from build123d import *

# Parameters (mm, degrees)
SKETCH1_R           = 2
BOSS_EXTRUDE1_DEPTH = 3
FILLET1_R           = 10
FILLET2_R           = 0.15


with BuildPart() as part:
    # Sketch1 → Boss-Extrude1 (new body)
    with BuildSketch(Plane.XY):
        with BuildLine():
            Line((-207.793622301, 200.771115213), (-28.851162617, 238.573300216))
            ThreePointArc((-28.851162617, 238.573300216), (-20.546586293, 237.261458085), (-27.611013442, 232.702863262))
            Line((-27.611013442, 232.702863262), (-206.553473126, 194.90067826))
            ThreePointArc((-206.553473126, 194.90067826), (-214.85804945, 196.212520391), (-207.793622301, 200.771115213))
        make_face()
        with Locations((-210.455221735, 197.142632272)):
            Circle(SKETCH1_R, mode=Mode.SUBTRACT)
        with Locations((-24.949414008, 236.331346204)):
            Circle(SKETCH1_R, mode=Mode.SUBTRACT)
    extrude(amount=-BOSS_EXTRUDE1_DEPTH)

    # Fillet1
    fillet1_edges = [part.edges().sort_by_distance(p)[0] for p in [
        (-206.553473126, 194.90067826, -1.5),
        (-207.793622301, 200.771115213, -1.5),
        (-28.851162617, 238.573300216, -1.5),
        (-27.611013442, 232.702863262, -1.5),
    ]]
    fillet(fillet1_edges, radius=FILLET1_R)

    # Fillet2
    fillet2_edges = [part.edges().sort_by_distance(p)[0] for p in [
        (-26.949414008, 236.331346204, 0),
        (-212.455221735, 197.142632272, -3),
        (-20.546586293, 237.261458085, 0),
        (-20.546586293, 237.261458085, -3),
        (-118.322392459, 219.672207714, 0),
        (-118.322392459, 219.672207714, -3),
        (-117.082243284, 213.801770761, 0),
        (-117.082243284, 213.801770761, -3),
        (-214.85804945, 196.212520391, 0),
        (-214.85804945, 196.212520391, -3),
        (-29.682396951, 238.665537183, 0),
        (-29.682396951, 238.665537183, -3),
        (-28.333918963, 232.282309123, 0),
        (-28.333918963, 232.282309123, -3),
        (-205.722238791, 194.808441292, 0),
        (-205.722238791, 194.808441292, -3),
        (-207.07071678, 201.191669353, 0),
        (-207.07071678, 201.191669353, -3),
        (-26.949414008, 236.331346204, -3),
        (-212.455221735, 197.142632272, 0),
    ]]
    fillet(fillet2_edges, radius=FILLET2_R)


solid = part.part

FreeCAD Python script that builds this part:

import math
import FreeCAD as App
import Part
import Sketcher


def edges_at(feature, points):
    """Names of the edges that pass closest to the given points."""
    edges = feature.Shape.Edges
    near = lambda p: min(range(len(edges)), key=lambda i: edges[i].distToShape(Part.Vertex(*p))[0])
    return sorted({f"Edge{near(p) + 1}" for p in points})

doc = App.newDocument("Part")
params = doc.addObject("Spreadsheet::Sheet", "Params")
for row, (alias, value) in enumerate([
    ("sketch1_diameter", "4 mm"),
    ("sketch1_radius", "4.5 mm"),
    ("pad1_length", "3 mm"),
    ("fillet_radius", "10 mm"),
    ("fillet2_radius", "0.15 mm"),
], start=1):
    params.set(f"A{row}", alias)
    params.set(f"B{row}", "=" + value)
    params.setAlias(f"B{row}", alias)

body = doc.addObject("PartDesign::Body", "Body")

# Sketch on XY plane
sketch1 = body.newObject("Sketcher::SketchObject", "Sketch")
sketch1.AttachmentSupport = (doc.getObject("XY_Plane"), [""])
sketch1.MapMode = "FlatFace"
sketch1.addGeometry([
    Part.LineSegment(App.Vector(-28.9, 238.6, 0), App.Vector(-207.8, 200.8, 0)),  # 0
    Part.ArcOfCircle(Part.Circle(App.Vector(-210.5, 197.1, 0), App.Vector(0, 0, 1), 4.5), math.radians(54), math.radians(330)),  # 1
    Part.LineSegment(App.Vector(-206.6, 194.9, 0), App.Vector(-27.6, 232.7, 0)),  # 2
    Part.ArcOfCircle(Part.Circle(App.Vector(-24.9, 236.3, 0), App.Vector(0, 0, 1), 4.5), math.radians(-126), math.radians(150)),  # 3
    Part.Circle(App.Vector(-210.5, 197.1, 0), App.Vector(0, 0, 1), 2),  # 4
    Part.Circle(App.Vector(-24.9, 236.3, 0), App.Vector(0, 0, 1), 2),  # 5
], False)
sketch1.addConstraint([
    Sketcher.Constraint("Coincident", 0, 2, 1, 1),
    Sketcher.Constraint("Coincident", 1, 2, 2, 1),
    Sketcher.Constraint("Coincident", 2, 2, 3, 1),
    Sketcher.Constraint("Coincident", 3, 2, 0, 1),
    Sketcher.Constraint("Coincident", 4, 3, 1, 3),
    Sketcher.Constraint("Coincident", 5, 3, 3, 3),
    Sketcher.Constraint("Equal", 1, 3),
    Sketcher.Constraint("Equal", 4, 5),
    Sketcher.Constraint("Parallel", 0, 2),
    Sketcher.Constraint("Equal", 0, 2),
    Sketcher.Constraint("Diameter", 4, 4.0),
    Sketcher.Constraint("Radius", 1, 4.5),
    Sketcher.Constraint("DistanceY", -1, 1, 3, 2, 238.5733),
    Sketcher.Constraint("DistanceX", 1, 3, 0, 2, 2.661599),
    Sketcher.Constraint("DistanceX", 1, 3, -1, 1, 210.455222),
    Sketcher.Constraint("DistanceY", -1, 1, 1, 2, 194.900678),
    Sketcher.Constraint("DistanceX", 0, 2, 3, 3, 182.844208),
    Sketcher.Constraint("DistanceY", 0, 2, 3, 3, 35.560231),
])
sketch1.setExpression("Constraints[10]", "Params.sketch1_diameter")
sketch1.setExpression("Constraints[11]", "Params.sketch1_radius")
pad1 = body.newObject("PartDesign::Pad", "Pad")
pad1.Profile = sketch1
pad1.setExpression("Length", "Params.pad1_length")
pad1.Reversed = True
doc.recompute()

fillet = body.newObject("PartDesign::Fillet", "Fillet")
fillet.Base = (pad1, edges_at(pad1, [
    (-206.553, 194.901, -1.5),
    (-207.794, 200.771, -1.5),
    (-28.851, 238.573, -1.5),
    (-27.611, 232.703, -1.5),
]))
fillet.setExpression("Radius", "Params.fillet_radius")
doc.recompute()

fillet2 = body.newObject("PartDesign::Fillet", "Fillet001")
fillet2.Base = (fillet, edges_at(fillet, [
    (-26.949, 236.331, 0),
    (-212.455, 197.143, -3),
    (-20.547, 237.261, 0),
    (-20.547, 237.261, -3),
    (-118.322, 219.672, 0),
    (-118.322, 219.672, -3),
    (-117.082, 213.802, 0),
    (-117.082, 213.802, -3),
    (-214.858, 196.213, 0),
    (-214.858, 196.213, -3),
    (-29.682, 238.666, 0),
    (-29.682, 238.666, -3),
    (-28.334, 232.282, 0),
    (-28.334, 232.282, -3),
    (-205.722, 194.808, 0),
    (-205.722, 194.808, -3),
    (-207.071, 201.192, 0),
    (-207.071, 201.192, -3),
    (-26.949, 236.331, -3),
    (-212.455, 197.143, 0),
]))
fillet2.setExpression("Radius", "Params.fillet2_radius")

doc.recompute()
